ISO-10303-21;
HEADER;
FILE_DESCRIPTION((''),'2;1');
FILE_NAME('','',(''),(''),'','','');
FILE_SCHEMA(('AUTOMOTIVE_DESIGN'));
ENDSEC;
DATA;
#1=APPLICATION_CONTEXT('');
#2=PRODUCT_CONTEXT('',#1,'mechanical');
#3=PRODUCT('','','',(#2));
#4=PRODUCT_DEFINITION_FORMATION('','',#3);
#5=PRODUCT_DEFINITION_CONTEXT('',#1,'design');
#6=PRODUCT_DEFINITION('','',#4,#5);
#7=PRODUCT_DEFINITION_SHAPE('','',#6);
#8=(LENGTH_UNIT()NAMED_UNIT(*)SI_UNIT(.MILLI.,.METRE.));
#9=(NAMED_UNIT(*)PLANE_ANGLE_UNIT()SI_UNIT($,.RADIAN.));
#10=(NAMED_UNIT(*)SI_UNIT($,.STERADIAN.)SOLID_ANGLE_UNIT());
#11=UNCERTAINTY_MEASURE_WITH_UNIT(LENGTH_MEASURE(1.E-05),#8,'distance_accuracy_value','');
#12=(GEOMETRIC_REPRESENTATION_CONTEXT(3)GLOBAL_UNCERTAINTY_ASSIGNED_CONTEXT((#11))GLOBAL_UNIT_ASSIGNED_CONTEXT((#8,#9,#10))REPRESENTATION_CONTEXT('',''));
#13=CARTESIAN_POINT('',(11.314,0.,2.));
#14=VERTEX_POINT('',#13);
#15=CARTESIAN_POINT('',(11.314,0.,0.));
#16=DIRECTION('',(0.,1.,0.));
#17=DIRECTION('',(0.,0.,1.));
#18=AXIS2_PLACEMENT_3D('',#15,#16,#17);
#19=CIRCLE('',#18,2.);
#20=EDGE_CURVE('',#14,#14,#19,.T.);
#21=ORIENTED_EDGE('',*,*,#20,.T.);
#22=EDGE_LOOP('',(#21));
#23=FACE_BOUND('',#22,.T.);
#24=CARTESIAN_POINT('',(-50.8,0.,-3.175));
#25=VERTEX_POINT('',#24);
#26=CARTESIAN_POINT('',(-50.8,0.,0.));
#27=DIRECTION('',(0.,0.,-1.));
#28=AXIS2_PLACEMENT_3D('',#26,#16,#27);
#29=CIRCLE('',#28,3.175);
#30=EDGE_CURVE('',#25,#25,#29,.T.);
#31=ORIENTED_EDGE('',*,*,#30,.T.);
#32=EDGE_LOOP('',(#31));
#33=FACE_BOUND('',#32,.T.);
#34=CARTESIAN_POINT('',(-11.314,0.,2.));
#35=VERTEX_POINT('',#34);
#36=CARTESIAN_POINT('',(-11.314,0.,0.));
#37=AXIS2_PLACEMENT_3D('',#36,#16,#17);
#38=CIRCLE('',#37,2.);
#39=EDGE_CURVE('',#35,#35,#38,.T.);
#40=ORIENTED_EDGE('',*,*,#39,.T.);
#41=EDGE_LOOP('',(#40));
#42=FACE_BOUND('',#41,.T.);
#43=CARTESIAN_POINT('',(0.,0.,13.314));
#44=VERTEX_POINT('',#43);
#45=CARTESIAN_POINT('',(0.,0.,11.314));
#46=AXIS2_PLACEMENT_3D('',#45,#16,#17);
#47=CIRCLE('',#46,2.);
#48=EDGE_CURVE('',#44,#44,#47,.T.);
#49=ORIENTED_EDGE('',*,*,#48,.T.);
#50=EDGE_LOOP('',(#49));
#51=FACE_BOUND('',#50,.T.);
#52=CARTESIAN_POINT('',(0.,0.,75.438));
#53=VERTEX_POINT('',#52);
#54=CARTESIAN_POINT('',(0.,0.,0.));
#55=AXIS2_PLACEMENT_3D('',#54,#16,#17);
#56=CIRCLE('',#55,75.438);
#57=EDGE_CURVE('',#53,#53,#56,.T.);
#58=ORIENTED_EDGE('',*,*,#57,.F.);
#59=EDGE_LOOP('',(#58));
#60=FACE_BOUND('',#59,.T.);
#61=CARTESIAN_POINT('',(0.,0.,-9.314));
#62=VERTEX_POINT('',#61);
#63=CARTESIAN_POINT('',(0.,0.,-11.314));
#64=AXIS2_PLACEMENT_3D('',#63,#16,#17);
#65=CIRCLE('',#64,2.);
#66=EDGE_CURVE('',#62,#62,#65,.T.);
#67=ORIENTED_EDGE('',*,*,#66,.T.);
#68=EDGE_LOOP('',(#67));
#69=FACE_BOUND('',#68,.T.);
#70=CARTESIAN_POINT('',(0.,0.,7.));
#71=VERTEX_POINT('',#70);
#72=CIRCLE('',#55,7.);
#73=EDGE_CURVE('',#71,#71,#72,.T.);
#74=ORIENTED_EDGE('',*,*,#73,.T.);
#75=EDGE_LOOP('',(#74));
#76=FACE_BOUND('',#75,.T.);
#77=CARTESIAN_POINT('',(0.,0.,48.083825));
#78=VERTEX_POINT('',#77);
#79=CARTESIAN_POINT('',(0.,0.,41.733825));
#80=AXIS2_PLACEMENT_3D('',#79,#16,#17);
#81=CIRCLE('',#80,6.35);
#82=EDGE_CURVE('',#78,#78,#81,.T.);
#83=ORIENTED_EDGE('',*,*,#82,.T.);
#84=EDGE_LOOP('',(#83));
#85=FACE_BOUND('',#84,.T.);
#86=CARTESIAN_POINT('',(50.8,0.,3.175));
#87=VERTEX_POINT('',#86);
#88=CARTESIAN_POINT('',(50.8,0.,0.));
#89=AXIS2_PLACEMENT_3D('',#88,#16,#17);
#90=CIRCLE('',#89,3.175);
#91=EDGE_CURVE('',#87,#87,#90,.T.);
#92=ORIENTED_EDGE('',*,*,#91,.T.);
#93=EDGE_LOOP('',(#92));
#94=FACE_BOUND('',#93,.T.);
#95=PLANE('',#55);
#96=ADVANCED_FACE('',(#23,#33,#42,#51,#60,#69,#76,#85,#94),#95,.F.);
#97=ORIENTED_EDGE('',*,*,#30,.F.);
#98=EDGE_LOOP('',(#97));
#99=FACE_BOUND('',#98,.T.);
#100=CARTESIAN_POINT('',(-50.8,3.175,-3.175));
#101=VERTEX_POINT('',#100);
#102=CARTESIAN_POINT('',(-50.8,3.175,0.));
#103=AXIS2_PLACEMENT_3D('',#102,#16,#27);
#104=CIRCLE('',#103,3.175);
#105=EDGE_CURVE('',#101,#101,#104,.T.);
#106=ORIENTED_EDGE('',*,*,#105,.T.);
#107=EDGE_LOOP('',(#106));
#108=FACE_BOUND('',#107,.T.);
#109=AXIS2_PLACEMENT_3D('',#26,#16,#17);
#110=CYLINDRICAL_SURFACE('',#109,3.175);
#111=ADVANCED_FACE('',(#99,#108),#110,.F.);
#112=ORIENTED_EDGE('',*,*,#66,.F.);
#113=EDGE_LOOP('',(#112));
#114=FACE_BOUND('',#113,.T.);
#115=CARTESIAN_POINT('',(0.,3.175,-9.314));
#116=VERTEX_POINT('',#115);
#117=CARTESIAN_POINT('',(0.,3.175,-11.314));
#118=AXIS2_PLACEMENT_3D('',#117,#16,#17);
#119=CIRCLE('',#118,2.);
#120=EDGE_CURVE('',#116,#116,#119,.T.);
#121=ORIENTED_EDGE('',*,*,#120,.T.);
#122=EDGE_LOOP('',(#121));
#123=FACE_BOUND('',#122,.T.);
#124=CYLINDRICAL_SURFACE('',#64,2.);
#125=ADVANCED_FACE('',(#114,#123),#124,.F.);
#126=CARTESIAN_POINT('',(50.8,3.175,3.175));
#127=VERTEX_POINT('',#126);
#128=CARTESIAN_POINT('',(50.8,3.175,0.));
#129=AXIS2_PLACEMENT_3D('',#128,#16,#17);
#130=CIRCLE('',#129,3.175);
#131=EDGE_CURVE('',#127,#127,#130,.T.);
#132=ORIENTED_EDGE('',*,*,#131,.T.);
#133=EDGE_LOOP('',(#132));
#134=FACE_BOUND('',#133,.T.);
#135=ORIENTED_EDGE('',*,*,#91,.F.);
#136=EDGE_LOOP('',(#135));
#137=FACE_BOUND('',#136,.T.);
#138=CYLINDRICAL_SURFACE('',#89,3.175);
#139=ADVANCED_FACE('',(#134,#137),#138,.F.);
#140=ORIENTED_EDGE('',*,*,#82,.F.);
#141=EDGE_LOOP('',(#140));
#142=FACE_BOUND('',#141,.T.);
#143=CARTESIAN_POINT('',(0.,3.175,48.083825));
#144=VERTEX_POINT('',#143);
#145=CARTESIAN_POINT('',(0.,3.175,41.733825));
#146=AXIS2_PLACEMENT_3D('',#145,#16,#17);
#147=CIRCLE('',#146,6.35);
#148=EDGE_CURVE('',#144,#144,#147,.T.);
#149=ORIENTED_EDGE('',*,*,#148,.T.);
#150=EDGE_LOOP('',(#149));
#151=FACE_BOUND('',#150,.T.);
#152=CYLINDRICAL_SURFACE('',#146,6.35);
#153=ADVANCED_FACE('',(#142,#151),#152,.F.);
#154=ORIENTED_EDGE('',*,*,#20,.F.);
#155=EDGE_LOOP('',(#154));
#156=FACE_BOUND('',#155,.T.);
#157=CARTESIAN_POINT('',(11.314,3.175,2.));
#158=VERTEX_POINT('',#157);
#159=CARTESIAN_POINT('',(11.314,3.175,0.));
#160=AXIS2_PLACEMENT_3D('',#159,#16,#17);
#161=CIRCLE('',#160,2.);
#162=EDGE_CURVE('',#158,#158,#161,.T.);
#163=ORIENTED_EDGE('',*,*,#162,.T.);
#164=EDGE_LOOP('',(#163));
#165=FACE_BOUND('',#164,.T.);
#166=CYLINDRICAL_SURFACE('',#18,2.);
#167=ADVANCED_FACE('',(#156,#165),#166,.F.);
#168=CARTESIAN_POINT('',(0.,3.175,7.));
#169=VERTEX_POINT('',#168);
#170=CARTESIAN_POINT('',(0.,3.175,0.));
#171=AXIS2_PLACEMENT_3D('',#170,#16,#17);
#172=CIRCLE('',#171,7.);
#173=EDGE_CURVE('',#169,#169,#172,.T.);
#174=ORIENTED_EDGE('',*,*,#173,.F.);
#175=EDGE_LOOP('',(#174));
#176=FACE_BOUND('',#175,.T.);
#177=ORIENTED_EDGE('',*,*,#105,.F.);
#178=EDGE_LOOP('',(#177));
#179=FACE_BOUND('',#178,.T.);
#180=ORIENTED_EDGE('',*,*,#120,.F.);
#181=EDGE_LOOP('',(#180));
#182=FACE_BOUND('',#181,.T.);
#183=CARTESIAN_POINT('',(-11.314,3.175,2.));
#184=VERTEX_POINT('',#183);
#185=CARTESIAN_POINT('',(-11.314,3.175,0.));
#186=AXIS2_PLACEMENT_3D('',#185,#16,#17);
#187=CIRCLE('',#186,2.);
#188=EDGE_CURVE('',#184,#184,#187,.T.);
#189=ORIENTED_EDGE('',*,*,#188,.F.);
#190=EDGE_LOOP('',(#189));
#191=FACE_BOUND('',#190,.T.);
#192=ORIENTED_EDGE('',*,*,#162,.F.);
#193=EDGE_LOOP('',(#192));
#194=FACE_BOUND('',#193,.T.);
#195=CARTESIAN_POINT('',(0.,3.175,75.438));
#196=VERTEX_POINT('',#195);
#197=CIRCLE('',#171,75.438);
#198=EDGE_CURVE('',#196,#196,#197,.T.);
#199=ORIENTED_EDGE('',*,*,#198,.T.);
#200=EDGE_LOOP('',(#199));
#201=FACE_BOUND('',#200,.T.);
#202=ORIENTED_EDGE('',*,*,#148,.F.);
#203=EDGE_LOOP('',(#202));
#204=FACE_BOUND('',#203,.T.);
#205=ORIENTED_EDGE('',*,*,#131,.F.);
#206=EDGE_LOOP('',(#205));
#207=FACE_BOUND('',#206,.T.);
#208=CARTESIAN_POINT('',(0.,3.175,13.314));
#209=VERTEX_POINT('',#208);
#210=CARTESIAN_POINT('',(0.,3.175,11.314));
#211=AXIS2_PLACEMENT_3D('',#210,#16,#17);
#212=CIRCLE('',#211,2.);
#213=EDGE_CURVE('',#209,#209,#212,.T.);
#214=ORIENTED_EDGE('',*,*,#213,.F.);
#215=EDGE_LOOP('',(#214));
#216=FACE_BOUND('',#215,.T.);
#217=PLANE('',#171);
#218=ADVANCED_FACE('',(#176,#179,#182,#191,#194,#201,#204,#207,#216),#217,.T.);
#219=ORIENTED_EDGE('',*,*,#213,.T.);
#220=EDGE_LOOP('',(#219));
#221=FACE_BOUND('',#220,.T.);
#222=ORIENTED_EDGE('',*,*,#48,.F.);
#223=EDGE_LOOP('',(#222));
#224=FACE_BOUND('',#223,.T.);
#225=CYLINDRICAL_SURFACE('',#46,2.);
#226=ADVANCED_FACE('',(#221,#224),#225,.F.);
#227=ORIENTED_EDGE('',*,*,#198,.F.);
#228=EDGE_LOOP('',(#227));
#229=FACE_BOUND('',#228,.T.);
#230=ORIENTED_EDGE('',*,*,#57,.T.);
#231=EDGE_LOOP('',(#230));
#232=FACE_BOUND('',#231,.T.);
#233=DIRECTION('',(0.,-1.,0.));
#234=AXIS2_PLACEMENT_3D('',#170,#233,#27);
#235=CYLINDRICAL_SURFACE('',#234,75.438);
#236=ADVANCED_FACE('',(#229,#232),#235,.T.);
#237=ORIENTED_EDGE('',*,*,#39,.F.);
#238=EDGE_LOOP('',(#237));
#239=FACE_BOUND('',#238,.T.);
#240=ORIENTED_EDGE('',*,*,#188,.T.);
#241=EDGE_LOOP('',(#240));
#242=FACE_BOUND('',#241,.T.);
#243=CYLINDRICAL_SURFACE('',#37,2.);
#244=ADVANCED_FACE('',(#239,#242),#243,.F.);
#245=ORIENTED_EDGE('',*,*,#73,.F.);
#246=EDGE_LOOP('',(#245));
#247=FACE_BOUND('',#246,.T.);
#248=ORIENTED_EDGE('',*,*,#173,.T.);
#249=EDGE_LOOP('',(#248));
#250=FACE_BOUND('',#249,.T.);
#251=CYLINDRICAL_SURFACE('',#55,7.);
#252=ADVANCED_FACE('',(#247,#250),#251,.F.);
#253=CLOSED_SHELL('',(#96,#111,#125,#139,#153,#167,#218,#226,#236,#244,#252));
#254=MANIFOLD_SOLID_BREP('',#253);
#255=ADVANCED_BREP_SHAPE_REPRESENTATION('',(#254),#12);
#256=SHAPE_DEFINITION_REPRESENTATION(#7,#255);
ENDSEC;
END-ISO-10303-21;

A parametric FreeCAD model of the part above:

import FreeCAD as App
import Part
import Sketcher
Q = App.Units.Quantity

doc = App.newDocument("Part")
params = doc.addObject("Spreadsheet::Sheet", "Params")
for row, (alias, value) in enumerate([
    ("sketch1_diameter", "5.94 in"),
    ("pad1_length", "0.125 in"),
    ("sketch2_diameter", "0.25 in"),
    ("sketch4_diameter", "0.5 in"),
    ("hole_diameter", "0.5 in"),
], start=1):
    params.set(f"A{row}", alias)
    params.set(f"B{row}", "=" + value)
    params.setAlias(f"B{row}", alias)

body = doc.addObject("PartDesign::Body", "Body")

# Sketch on XZ plane
sketch1 = doc.addObject("Sketcher::SketchObject", "Sketch")
body.addObject(sketch1)
sketch1.AttachmentSupport = (doc.XZ_Plane, [""])
sketch1.MapMode = "FlatFace"
sketch1.addGeometry(Part.Circle(App.Vector(0, 0, 0), App.Vector(0, 0, 1), 75), False)
sketch1.addConstraint([
    Sketcher.Constraint("Coincident", 0, 3, -1, 1),
    Sketcher.Constraint("Diameter", 0, Q("5.94 in")),
])
sketch1.setExpression("Constraints[1]", "Params.sketch1_diameter")
pad1 = doc.addObject("PartDesign::Pad", "Pad")
body.addObject(pad1)
pad1.Profile = sketch1
pad1.setExpression("Length", "Params.pad1_length")
pad1.Reversed = True

# Sketch on XZ plane
sketch2 = doc.addObject("Sketcher::SketchObject", "Sketch001")
body.addObject(sketch2)
sketch2.AttachmentSupport = (doc.XZ_Plane, [""])
sketch2.MapMode = "FlatFace"
sketch2.AttachmentOffset = App.Placement(App.Vector(0, 0, -0.125 * 25.4), App.Rotation())
sketch2.addGeometry([
    Part.Circle(App.Vector(50.8, 0, 0), App.Vector(0, 0, 1), 3.2),
    Part.Circle(App.Vector(-50.8, 0, 0), App.Vector(0, 0, 1), 3.2),
], False)
sketch2.addConstraint([
    Sketcher.Constraint("Equal", 0, 1),
    Sketcher.Constraint("Symmetric", 0, 3, 1, 3, -1, 1),
    Sketcher.Constraint("PointOnObject", 0, 3, -1),
    Sketcher.Constraint("Diameter", 0, Q("0.25 in")),
    Sketcher.Constraint("DistanceX", -1, 1, 0, 3, Q("2 in")),
])
sketch2.setExpression("Constraints[3]", "Params.sketch2_diameter")
pocket1 = doc.addObject("PartDesign::Pocket", "Pocket")
body.addObject(pocket1)
pocket1.Profile = sketch2
pocket1.Type = "ThroughAll"
pocket1.Reversed = True

# Sketch on XZ plane
sketch3 = doc.addObject("Sketcher::SketchObject", "Sketch002")
body.addObject(sketch3)
sketch3.AttachmentSupport = (doc.XZ_Plane, [""])
sketch3.MapMode = "FlatFace"
sketch3.AttachmentOffset = App.Placement(App.Vector(0, 0, -0.125 * 25.4), App.Rotation())
sketch3.addGeometry([
    Part.Circle(App.Vector(0, 0, 0), App.Vector(0, 0, 1), 7),  # 0
    Part.Circle(App.Vector(0, 11.3, 0), App.Vector(0, 0, 1), 2),  # 1
    Part.Circle(App.Vector(-11.3, 0, 0), App.Vector(0, 0, 1), 2),  # 2
    Part.Circle(App.Vector(11.3, 0, 0), App.Vector(0, 0, 1), 2),  # 3
    Part.Circle(App.Vector(0, -11.3, 0), App.Vector(0, 0, 1), 2),  # 4
], False)
sketch3.addConstraint([
    Sketcher.Constraint("Coincident", 0, 3, -1, 1),
    Sketcher.Constraint("Equal", 1, 2),
    Sketcher.Constraint("Equal", 2, 3),
    Sketcher.Constraint("Equal", 3, 4),
    Sketcher.Constraint("Symmetric", 2, 3, 3, 3, -1, 1),
    Sketcher.Constraint("Symmetric", 1, 3, 4, 3, -1, 1),
    Sketcher.Constraint("PointOnObject", 1, 3, -2),
    Sketcher.Constraint("PointOnObject", 2, 3, -1),
    Sketcher.Constraint("Diameter", 0, 14.0),
    Sketcher.Constraint("Diameter", 1, 4.0),
    Sketcher.Constraint("DistanceY", -1, 1, 1, 3, 11.314),
    Sketcher.Constraint("DistanceX", 2, 3, -1, 1, 11.314),
])
pocket2 = doc.addObject("PartDesign::Pocket", "Pocket001")
body.addObject(pocket2)
pocket2.Profile = sketch3
pocket2.Type = "ThroughAll"
pocket2.Reversed = True

# Sketch on XZ plane
sketch4 = doc.addObject("Sketcher::SketchObject", "Sketch003")
body.addObject(sketch4)
sketch4.AttachmentSupport = (doc.XZ_Plane, [""])
sketch4.MapMode = "FlatFace"
sketch4.AttachmentOffset = App.Placement(App.Vector(0, 0, -0.125 * 25.4), App.Rotation())
sketch4.addGeometry(Part.Circle(App.Vector(0, 42, 0), App.Vector(0, 0, 1), 6), False)
sketch4.addConstraint([
    Sketcher.Constraint("PointOnObject", 0, 3, -2),
    Sketcher.Constraint("Diameter", 0, Q("0.5 in")),
    Sketcher.Constraint("DistanceY", -1, 1, 0, 3, 41.733825),
])
sketch4.setExpression("Constraints[1]", "Params.sketch4_diameter")
doc.recompute()
hole = doc.addObject("PartDesign::Hole", "Hole")
body.addObject(hole)
hole.Profile = sketch4
hole.ThreadType = "None"
hole.setExpression("Diameter", "Params.hole_diameter")
hole.DepthType = "ThroughAll"
hole.Reversed = True

doc.recompute()
